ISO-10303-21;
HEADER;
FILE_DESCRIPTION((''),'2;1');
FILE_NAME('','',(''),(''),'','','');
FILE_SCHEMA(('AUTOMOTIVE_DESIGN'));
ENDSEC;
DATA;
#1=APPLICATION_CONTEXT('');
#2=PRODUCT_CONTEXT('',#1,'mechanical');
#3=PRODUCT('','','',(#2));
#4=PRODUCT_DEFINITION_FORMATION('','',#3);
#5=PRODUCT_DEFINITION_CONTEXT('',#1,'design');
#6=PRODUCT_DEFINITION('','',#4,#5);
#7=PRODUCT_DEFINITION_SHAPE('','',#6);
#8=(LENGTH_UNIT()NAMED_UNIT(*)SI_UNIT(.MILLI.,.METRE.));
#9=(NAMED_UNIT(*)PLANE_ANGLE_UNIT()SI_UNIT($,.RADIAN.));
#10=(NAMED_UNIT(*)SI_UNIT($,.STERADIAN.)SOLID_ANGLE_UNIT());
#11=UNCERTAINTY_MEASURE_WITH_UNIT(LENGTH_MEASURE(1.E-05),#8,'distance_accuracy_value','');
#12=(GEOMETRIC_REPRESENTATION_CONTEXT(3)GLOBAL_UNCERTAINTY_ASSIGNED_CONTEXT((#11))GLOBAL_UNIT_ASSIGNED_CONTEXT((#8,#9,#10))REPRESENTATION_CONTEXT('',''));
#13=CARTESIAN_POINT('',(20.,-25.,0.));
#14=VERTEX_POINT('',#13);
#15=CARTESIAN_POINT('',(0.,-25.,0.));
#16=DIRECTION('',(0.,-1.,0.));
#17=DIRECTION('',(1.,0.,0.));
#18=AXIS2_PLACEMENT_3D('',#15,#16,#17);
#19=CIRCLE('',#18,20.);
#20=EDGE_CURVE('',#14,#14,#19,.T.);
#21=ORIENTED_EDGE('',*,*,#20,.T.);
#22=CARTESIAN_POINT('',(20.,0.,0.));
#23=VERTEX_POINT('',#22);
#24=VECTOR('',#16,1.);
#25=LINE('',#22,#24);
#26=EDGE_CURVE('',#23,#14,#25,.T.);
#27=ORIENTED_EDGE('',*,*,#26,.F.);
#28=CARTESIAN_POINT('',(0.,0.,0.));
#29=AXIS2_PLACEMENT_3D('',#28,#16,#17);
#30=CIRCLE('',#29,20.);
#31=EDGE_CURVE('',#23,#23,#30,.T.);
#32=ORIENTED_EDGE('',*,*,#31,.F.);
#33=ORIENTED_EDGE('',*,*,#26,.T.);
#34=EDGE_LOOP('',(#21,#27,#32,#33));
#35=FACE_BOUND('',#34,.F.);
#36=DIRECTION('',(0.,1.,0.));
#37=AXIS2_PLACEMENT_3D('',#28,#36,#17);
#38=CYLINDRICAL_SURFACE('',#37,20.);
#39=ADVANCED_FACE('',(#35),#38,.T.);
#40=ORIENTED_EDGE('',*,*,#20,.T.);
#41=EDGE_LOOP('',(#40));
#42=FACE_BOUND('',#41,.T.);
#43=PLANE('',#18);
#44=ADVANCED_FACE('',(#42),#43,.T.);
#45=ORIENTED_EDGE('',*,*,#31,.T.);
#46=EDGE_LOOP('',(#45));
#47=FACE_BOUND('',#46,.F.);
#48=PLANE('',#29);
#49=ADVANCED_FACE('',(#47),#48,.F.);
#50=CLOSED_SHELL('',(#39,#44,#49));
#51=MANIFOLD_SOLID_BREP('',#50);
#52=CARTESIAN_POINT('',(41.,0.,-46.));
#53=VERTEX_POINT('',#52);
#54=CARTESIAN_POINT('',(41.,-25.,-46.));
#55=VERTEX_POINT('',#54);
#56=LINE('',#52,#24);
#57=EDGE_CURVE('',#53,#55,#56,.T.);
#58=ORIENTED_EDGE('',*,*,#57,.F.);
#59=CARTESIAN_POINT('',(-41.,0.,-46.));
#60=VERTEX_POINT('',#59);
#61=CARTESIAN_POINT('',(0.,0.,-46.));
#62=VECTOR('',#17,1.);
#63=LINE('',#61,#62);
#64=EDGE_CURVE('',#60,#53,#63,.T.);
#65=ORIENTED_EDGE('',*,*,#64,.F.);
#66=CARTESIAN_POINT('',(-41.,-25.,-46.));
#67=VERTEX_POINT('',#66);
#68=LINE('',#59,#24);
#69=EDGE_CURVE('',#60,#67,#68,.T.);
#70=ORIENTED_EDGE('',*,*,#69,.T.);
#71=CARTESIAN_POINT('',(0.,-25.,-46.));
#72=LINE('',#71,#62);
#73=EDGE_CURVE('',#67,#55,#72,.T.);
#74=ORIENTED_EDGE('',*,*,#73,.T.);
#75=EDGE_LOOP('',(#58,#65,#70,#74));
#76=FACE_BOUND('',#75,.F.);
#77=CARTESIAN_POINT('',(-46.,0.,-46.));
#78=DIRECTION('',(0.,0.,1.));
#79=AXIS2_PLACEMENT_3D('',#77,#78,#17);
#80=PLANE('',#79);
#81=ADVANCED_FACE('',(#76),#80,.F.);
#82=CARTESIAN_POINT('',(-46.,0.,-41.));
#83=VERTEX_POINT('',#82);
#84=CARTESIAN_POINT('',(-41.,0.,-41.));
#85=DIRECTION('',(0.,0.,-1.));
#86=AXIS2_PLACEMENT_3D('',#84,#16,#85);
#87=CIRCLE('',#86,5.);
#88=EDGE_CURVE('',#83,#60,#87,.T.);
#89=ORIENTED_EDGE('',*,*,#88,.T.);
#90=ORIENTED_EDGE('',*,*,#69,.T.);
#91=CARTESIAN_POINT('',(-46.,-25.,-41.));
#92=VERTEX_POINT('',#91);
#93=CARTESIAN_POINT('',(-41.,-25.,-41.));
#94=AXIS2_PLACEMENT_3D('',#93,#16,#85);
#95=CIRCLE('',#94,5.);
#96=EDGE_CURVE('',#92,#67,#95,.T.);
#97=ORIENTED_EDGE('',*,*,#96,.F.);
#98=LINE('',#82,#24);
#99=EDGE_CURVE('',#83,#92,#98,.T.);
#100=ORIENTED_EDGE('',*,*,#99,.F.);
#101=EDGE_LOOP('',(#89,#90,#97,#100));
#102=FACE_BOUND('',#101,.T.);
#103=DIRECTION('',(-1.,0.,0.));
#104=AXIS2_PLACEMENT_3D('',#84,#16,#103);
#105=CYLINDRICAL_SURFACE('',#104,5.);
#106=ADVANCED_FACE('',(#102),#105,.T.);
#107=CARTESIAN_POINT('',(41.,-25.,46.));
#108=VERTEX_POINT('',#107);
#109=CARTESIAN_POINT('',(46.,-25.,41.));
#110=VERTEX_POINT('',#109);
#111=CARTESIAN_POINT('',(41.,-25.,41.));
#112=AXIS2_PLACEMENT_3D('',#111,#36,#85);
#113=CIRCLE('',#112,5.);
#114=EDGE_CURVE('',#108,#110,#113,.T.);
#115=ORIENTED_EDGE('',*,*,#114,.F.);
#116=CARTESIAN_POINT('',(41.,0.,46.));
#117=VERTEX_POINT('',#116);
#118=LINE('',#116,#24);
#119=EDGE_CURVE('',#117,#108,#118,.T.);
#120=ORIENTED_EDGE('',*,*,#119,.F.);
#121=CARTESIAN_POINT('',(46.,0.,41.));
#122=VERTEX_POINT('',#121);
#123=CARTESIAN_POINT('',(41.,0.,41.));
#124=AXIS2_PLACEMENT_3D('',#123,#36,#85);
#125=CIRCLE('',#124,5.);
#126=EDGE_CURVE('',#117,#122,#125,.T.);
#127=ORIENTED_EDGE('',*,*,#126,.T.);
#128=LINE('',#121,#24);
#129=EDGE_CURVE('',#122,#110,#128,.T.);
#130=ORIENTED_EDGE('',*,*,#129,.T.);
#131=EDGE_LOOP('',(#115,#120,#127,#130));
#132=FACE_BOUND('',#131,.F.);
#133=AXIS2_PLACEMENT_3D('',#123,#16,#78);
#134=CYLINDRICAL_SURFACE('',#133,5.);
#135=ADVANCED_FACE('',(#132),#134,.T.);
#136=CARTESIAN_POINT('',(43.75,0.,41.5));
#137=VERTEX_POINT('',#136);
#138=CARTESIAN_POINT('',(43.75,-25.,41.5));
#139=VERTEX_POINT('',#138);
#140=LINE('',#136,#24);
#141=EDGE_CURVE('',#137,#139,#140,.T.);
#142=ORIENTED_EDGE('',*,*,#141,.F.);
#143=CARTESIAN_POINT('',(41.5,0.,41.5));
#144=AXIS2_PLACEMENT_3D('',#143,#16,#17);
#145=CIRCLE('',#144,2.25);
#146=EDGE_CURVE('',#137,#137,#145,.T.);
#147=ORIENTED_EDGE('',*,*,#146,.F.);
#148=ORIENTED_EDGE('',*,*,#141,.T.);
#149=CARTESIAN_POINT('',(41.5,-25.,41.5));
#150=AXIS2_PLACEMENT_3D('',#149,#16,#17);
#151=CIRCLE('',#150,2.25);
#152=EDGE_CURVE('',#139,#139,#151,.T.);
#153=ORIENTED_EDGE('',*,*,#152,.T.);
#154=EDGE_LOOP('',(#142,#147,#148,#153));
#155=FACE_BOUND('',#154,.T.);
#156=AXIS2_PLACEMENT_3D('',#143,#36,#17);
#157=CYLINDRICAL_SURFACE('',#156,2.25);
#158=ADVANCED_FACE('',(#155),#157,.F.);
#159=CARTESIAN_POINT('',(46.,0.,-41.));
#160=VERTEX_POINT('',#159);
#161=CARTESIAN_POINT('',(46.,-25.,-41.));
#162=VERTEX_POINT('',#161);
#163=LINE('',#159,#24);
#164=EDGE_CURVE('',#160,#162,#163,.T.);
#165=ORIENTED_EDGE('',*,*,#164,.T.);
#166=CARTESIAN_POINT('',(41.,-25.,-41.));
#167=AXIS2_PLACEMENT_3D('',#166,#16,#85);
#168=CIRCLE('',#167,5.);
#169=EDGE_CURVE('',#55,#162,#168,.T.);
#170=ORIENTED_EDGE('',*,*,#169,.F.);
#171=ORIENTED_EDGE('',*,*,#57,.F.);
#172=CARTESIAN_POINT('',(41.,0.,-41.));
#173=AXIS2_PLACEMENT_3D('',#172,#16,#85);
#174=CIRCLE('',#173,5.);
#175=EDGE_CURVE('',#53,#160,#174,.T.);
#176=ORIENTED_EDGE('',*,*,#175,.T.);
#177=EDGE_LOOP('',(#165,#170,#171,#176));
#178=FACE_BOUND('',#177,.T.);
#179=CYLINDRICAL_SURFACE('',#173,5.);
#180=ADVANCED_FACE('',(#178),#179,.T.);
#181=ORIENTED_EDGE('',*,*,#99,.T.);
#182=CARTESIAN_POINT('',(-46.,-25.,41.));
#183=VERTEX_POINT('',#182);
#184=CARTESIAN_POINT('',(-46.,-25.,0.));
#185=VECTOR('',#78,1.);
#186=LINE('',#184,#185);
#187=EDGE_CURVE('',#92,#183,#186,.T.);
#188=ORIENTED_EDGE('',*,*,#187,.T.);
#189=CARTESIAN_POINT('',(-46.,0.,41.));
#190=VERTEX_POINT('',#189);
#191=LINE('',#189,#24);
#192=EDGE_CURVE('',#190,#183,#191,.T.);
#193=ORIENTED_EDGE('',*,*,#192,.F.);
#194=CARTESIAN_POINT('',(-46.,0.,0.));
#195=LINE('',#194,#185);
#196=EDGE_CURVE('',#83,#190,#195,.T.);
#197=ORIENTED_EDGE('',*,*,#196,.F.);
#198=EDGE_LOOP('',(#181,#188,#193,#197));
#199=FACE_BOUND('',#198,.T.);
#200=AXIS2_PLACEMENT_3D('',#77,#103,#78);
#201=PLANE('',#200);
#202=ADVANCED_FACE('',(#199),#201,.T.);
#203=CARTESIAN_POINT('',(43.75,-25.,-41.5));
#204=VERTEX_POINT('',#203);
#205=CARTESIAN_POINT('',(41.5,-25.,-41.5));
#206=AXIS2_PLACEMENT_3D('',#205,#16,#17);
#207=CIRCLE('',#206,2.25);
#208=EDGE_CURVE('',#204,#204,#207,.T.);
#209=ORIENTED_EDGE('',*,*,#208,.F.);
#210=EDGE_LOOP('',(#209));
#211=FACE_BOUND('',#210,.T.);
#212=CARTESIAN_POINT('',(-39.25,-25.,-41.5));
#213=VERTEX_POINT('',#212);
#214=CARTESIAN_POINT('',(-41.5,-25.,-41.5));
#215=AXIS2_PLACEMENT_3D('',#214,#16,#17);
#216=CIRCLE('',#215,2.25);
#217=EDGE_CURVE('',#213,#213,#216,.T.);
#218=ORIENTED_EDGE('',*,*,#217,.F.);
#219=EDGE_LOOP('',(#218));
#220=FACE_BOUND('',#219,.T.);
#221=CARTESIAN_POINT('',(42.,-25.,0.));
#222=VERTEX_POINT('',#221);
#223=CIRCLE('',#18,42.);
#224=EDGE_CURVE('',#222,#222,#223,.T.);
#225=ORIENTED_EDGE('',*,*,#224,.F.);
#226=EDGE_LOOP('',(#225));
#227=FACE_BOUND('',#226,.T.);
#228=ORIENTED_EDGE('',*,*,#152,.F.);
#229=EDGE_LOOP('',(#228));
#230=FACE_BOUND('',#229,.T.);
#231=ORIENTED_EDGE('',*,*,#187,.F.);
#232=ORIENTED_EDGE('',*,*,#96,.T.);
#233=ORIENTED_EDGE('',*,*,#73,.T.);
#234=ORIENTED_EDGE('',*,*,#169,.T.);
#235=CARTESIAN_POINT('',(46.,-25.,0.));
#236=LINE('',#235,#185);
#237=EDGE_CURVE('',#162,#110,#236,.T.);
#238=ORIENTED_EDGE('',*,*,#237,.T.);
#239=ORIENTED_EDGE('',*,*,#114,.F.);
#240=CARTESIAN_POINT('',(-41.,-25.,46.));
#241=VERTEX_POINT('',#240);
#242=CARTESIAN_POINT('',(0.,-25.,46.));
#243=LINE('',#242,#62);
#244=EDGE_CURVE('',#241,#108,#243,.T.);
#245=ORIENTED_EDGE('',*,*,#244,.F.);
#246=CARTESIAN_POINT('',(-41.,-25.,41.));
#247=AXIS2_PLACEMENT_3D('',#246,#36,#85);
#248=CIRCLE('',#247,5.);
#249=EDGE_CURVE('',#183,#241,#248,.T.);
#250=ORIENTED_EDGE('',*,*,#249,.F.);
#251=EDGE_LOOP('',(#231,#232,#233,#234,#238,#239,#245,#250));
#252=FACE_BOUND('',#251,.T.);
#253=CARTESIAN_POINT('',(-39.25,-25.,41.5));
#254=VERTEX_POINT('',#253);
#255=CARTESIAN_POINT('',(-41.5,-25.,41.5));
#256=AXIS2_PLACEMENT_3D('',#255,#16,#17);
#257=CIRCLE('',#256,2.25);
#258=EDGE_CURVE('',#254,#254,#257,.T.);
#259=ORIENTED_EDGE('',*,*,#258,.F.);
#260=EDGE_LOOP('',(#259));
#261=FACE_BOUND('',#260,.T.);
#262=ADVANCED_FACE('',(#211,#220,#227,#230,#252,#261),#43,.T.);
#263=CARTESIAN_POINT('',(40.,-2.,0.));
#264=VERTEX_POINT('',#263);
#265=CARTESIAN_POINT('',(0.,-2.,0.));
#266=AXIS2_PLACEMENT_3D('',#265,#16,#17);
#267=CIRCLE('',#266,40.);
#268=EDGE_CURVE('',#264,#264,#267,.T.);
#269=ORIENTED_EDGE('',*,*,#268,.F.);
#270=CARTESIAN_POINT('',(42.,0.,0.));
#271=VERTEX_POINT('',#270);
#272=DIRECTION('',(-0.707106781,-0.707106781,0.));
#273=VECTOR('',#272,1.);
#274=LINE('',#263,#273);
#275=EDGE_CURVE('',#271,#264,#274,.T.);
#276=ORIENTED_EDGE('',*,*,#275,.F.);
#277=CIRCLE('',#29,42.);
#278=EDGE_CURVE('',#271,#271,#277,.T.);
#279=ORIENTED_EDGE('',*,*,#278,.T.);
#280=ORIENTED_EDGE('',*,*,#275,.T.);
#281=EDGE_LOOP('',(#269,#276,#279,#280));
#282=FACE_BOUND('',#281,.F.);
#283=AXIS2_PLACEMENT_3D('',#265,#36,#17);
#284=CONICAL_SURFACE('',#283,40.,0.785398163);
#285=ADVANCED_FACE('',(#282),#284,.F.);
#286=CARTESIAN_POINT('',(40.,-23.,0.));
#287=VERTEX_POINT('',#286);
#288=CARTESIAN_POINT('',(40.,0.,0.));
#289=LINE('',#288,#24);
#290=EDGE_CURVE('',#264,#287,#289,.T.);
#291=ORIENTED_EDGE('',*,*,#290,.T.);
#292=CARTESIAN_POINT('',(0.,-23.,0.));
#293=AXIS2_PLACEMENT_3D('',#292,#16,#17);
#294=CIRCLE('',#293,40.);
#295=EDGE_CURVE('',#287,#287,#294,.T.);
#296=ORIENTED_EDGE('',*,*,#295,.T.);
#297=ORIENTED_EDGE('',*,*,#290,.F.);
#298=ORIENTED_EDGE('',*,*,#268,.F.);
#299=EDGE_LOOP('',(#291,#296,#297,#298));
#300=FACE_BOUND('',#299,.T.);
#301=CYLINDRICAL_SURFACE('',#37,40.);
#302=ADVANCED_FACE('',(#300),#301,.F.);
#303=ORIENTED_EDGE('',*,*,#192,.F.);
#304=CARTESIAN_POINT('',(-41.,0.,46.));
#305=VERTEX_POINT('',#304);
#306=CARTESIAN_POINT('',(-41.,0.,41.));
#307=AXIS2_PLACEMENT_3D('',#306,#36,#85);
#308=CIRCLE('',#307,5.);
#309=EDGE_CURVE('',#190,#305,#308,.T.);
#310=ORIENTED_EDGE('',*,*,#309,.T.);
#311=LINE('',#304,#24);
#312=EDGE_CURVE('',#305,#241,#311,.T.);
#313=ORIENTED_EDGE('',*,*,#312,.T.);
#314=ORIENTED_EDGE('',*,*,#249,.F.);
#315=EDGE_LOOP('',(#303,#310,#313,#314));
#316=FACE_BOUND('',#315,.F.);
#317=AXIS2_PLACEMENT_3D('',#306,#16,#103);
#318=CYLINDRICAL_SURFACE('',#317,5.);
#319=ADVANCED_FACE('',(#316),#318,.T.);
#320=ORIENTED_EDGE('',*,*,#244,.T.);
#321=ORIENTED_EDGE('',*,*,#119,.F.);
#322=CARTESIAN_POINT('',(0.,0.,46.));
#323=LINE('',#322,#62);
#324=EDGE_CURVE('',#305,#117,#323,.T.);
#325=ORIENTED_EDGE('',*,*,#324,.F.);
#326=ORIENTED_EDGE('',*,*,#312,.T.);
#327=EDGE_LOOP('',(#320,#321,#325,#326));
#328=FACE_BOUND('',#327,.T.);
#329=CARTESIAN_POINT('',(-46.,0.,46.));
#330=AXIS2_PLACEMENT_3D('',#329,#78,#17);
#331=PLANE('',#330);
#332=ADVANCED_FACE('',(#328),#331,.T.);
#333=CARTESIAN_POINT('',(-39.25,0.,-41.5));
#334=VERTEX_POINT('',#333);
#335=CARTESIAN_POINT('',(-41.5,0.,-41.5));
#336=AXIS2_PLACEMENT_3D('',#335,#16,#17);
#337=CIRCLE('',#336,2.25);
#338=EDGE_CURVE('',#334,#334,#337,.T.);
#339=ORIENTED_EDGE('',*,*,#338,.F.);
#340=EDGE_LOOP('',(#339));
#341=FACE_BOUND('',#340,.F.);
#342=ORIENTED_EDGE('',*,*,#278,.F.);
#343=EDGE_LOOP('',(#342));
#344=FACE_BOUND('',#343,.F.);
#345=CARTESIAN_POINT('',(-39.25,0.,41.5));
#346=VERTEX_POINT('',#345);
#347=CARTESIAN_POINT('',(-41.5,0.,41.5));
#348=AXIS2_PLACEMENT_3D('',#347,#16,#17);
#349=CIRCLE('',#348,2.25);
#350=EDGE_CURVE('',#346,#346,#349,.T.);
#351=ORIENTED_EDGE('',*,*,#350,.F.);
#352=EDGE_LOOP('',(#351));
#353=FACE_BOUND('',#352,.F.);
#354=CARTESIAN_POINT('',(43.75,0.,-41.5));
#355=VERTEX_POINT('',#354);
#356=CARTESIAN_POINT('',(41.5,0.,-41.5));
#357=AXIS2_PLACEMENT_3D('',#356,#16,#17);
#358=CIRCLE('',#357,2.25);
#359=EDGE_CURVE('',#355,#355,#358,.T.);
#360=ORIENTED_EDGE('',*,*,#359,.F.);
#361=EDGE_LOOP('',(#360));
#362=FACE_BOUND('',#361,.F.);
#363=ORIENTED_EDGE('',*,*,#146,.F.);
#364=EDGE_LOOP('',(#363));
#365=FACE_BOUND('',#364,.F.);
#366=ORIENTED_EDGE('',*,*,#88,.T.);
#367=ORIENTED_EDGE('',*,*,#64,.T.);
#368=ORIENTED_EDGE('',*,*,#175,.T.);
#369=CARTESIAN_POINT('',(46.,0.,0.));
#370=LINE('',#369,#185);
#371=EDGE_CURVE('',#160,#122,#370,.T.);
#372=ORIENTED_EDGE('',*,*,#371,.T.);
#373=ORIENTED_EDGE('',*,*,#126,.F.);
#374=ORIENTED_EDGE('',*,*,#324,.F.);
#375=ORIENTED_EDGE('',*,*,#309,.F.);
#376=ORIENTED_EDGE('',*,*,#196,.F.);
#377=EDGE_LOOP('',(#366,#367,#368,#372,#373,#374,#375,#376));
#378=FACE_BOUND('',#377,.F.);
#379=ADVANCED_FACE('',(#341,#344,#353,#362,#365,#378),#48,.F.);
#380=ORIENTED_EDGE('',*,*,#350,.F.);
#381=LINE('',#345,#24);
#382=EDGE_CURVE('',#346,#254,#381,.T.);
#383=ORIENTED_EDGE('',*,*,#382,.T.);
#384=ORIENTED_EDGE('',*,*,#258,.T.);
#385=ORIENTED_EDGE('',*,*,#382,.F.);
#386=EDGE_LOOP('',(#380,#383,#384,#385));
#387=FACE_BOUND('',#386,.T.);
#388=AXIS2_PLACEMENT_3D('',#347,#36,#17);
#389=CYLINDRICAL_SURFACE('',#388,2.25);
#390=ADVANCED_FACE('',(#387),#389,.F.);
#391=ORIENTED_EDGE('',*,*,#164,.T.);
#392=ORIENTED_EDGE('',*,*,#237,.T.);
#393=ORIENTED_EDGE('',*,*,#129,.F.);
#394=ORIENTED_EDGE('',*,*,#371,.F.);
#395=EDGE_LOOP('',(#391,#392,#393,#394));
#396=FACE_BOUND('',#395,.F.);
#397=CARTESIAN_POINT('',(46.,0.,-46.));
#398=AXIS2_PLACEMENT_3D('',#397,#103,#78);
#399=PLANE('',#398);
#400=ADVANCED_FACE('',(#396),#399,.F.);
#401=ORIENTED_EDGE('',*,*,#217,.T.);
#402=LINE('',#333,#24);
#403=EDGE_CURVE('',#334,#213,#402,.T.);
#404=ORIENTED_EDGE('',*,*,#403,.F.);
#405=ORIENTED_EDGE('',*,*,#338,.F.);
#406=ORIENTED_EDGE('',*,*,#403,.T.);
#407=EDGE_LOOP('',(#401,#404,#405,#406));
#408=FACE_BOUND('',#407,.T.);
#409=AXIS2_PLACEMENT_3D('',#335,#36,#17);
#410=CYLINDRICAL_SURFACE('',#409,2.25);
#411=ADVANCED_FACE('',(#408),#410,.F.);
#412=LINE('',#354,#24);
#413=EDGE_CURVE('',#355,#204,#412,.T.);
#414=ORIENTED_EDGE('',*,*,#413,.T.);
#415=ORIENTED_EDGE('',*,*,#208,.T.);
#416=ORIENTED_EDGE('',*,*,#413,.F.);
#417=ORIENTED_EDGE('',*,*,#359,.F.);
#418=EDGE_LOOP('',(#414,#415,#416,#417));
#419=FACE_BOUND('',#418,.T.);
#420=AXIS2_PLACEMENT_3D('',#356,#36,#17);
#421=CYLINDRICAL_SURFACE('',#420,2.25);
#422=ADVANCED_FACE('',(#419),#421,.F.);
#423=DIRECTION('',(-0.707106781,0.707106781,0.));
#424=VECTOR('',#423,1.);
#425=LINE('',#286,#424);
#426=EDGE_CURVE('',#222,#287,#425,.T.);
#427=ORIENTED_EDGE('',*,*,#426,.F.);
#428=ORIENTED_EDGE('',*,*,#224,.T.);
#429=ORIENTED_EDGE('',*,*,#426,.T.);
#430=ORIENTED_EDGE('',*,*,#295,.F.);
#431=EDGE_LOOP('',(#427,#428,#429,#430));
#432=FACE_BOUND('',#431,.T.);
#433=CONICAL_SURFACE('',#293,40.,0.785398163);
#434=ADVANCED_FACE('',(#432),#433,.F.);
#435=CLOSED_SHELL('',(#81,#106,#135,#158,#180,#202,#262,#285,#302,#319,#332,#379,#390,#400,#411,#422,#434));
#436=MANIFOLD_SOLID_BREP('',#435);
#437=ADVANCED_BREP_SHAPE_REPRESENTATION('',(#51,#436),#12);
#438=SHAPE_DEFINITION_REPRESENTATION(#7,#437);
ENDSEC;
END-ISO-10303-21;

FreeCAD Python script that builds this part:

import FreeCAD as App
import Part
import Sketcher

V = App.Vector
Q = App.Units.Quantity


def edges_at(feature, points):
    """Names of the edges that pass closest to the given points."""
    edges = feature.Shape.Edges
    near = lambda p: min(range(len(edges)), key=lambda i: edges[i].distToShape(Part.Vertex(*p))[0])
    return sorted({f"Edge{near(p) + 1}" for p in points})


def add_polygon(sketch, points):
    """Adds a closed chain of lines whose ends are joined by coincident constraints."""
    first, n = sketch.GeometryCount, len(points)
    for a, b in zip(points, points[1:] + points[:1]):
        sketch.addGeometry(Part.LineSegment(App.Vector(*a, 0), App.Vector(*b, 0)), False)
    for i in range(n):
        sketch.addConstraint(Sketcher.Constraint("Coincident", first + i, 2, first + (i + 1) % n, 1))

doc = App.newDocument("Part")
body = doc.addObject("PartDesign::Body", "Body")
body.AllowCompound = True

sketch1 = body.newObject("Sketcher::SketchObject", "Sketch")
sketch1.AttachmentSupport = (doc.getObject("XZ_Plane"), [""])
sketch1.MapMode = "FlatFace"
add_polygon(sketch1, [(-46, 46), (-46, -46), (46, -46), (46, 46)])
sketch1.addGeometry(Part.Circle(V(-41.5, -41.5, 0), V(0, 0, 1), 2.2), False)
sketch1.addGeometry(Part.Circle(V(41.5, -41.5, 0), V(0, 0, 1), 2.2), False)
sketch1.addGeometry(Part.Circle(V(-41.5, 41.5, 0), V(0, 0, 1), 2.2), False)
sketch1.addGeometry(Part.Circle(V(0, 0, 0), V(0, 0, 1), 40), False)
sketch1.addGeometry(Part.Circle(V(41.5, 41.5, 0), V(0, 0, 1), 2.2), False)
sketch1.addGeometry(Part.Circle(V(0, 0, 0), V(0, 0, 1), 20), False)
sketch1.addConstraint([
    Sketcher.Constraint("Vertical", 0),
    Sketcher.Constraint("Horizontal", 1),
    Sketcher.Constraint("Vertical", 2),
    Sketcher.Constraint("Horizontal", 3),
    Sketcher.Constraint("Coincident", 7, 3, -1, 1),
    Sketcher.Constraint("Coincident", 9, 3, -1, 1),
    Sketcher.Constraint("Equal", 4, 5),
    Sketcher.Constraint("Equal", 5, 6),
    Sketcher.Constraint("Equal", 6, 8),
    Sketcher.Constraint("Symmetric", 5, 3, 6, 3, -1, 1),
    Sketcher.Constraint("Symmetric", 4, 3, 8, 3, -1, 1),
    Sketcher.Constraint("Symmetric", 0, 2, 2, 2, -1, 1),
    Sketcher.Constraint("Symmetric", 4, 3, 5, 3, -2),
    Sketcher.Constraint("Equal", 3, 0),
    Sketcher.Constraint("Diameter", 7, Q("80 mm")),
    Sketcher.Constraint("Diameter", 9, Q("40 mm")),
    Sketcher.Constraint("Diameter", 4, Q("4.5 mm")),
    Sketcher.Constraint("DistanceX", 1, 1, 1, 2, Q("92 mm")),
    Sketcher.Constraint("DistanceX", 4, 3, 5, 3, Q("83 mm")),
    Sketcher.Constraint("DistanceY", 4, 3, 6, 3, Q("83 mm")),
])
pad1 = body.newObject("PartDesign::Pad", "Pad")
pad1.Profile = sketch1
pad1.Length = 25
doc.recompute()

fillet = body.newObject("PartDesign::Fillet", "Fillet")
fillet.Base = (pad1, edges_at(pad1, [
    (46, -12.5, 46),
    (-46, -12.5, 46),
    (46, -12.5, -46),
    (-46, -12.5, -46),
]))
fillet.Radius = 5
doc.recompute()

chamfer = body.newObject("PartDesign::Chamfer", "Chamfer")
chamfer.Base = (fillet, edges_at(fillet, [(-40, -25, 0), (-40, 0, 0)]))
chamfer.Size = 2

doc.recompute()
